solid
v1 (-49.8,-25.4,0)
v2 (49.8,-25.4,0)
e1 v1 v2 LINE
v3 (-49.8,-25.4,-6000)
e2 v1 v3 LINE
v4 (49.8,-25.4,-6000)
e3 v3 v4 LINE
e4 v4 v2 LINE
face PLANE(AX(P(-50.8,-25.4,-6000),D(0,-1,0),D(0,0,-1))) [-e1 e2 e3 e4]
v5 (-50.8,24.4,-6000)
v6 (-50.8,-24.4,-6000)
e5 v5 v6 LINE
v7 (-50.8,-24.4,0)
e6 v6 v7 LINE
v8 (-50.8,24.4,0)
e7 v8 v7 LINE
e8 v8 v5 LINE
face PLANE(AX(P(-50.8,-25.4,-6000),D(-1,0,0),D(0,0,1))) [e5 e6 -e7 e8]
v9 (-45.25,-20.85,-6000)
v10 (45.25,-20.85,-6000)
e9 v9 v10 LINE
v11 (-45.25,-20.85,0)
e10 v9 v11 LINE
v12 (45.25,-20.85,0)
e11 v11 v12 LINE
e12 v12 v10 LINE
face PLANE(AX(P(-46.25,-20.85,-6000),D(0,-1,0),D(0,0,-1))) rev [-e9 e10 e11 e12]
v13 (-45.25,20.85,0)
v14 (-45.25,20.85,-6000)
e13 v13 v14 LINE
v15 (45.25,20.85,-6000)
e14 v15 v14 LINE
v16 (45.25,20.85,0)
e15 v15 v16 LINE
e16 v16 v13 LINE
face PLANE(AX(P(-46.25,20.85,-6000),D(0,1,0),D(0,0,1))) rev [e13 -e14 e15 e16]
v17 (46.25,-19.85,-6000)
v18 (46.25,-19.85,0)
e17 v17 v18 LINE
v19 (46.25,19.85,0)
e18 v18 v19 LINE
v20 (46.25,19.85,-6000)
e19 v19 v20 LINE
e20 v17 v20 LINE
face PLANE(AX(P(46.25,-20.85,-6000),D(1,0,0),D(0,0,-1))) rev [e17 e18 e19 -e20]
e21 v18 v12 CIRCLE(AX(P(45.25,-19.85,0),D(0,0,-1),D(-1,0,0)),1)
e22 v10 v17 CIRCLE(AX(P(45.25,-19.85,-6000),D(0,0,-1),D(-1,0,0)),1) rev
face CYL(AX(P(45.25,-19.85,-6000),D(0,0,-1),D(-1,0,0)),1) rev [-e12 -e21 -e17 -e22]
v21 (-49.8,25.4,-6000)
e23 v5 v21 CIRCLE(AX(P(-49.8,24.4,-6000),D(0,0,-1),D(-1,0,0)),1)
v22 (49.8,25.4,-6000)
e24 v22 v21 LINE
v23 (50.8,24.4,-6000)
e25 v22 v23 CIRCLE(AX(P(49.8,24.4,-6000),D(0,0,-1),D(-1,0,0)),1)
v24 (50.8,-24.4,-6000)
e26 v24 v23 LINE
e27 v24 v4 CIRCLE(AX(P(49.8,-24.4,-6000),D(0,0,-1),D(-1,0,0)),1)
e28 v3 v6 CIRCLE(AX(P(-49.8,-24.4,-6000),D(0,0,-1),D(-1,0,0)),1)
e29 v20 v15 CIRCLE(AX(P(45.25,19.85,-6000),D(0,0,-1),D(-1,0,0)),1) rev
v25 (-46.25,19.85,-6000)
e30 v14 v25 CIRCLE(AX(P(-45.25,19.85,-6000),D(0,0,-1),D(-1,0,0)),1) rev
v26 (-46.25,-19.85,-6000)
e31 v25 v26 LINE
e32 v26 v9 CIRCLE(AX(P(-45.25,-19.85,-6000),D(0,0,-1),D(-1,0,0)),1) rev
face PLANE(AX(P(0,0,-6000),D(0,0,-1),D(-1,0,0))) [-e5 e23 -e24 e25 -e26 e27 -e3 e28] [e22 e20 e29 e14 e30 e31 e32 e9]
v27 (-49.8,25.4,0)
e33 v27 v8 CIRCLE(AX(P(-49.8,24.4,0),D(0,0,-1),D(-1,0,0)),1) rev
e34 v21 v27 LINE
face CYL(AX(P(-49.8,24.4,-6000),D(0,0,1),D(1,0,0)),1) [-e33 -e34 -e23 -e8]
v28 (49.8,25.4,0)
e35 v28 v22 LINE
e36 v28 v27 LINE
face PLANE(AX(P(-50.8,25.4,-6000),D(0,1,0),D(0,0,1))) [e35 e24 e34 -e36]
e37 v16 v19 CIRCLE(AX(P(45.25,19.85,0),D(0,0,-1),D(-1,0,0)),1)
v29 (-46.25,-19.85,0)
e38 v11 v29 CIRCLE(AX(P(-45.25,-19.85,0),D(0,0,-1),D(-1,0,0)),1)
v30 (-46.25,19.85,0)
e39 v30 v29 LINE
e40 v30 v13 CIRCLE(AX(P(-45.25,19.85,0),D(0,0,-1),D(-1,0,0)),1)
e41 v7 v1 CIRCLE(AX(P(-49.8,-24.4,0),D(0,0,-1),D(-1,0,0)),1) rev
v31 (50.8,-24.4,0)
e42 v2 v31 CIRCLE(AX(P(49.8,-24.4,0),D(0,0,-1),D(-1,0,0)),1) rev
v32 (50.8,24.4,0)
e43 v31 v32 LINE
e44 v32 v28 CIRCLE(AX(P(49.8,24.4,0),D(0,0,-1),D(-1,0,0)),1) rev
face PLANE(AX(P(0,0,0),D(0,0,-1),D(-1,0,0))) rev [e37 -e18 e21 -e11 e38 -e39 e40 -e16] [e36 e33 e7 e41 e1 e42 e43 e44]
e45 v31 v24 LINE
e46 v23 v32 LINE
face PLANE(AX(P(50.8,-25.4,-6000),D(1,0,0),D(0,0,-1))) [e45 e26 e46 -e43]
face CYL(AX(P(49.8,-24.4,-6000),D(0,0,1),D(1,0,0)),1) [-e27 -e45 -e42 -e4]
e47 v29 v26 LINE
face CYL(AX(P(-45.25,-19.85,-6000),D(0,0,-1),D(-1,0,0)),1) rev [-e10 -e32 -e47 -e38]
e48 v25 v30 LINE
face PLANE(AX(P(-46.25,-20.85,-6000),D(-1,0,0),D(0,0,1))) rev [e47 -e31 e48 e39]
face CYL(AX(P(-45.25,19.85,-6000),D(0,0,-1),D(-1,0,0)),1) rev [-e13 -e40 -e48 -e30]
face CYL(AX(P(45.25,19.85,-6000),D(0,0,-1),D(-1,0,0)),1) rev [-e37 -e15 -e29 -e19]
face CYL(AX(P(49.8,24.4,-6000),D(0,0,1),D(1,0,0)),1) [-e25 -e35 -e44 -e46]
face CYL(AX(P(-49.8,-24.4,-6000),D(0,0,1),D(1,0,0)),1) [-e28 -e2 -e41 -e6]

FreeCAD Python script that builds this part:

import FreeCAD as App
import Part
import Sketcher

V = App.Vector
Q = App.Units.Quantity


def edges_at(feature, points):
    """Names of the edges that pass closest to the given points."""
    edges = feature.Shape.Edges
    near = lambda p: min(range(len(edges)), key=lambda i: edges[i].distToShape(Part.Vertex(*p))[0])
    return sorted({f"Edge{near(p) + 1}" for p in points})

doc = App.newDocument("Part")
body = doc.addObject("PartDesign::Body", "Body")

# Sketch on XY plane
sketch1 = body.newObject("Sketcher::SketchObject", "Sketch")
sketch1.AttachmentSupport = (doc.getObject("XY_Plane"), [""])
sketch1.MapMode = "FlatFace"
sketch1.addGeometry([
    Part.LineSegment(V(-50.8, 25.4, 0), V(-50.8, -25.4, 0)),  # 0
    Part.LineSegment(V(-50.8, -25.4, 0), V(50.8, -25.4, 0)),  # 1
    Part.LineSegment(V(50.8, -25.4, 0), V(50.8, 25.4, 0)),  # 2
    Part.LineSegment(V(50.8, 25.4, 0), V(-50.8, 25.4, 0)),  # 3
    Part.LineSegment(V(46.25, -20.85, 0), V(-46.25, -20.85, 0)),  # 4
    Part.LineSegment(V(-46.25, -20.85, 0), V(-46.25, 20.85, 0)),  # 5
    Part.LineSegment(V(-46.25, 20.85, 0), V(46.25, 20.85, 0)),  # 6
    Part.LineSegment(V(46.25, 20.85, 0), V(46.25, -20.85, 0)),  # 7
], False)
sketch1.addConstraint([
    Sketcher.Constraint("Coincident", 0, 2, 1, 1),
    Sketcher.Constraint("Coincident", 1, 2, 2, 1),
    Sketcher.Constraint("Coincident", 2, 2, 3, 1),
    Sketcher.Constraint("Coincident", 3, 2, 0, 1),
    Sketcher.Constraint("Coincident", 4, 2, 5, 1),
    Sketcher.Constraint("Coincident", 5, 2, 6, 1),
    Sketcher.Constraint("Coincident", 6, 2, 7, 1),
    Sketcher.Constraint("Coincident", 7, 2, 4, 1),
    Sketcher.Constraint("Vertical", 0),
    Sketcher.Constraint("Horizontal", 1),
    Sketcher.Constraint("Vertical", 2),
    Sketcher.Constraint("Horizontal", 3),
    Sketcher.Constraint("Horizontal", 4),
    Sketcher.Constraint("Vertical", 5),
    Sketcher.Constraint("Horizontal", 6),
    Sketcher.Constraint("Vertical", 7),
    Sketcher.Constraint("Symmetric", 0, 2, 2, 2, -1, 1),
    Sketcher.Constraint("Symmetric", 4, 2, 6, 2, -1, 1),
    Sketcher.Constraint("DistanceX", 1, 1, 1, 2, Q("101.6 mm")),
    Sketcher.Constraint("DistanceX", 4, 2, 4, 1, Q("92.5 mm")),
    Sketcher.Constraint("DistanceY", 0, 2, 0, 1, Q("50.8 mm")),
    Sketcher.Constraint("DistanceY", 5, 1, 5, 2, Q("41.7 mm")),
])
pad1 = body.newObject("PartDesign::Pad", "Pad")
pad1.Profile = sketch1
pad1.Length = 6000
pad1.Reversed = True
doc.recompute()

fillet = body.newObject("PartDesign::Fillet", "Fillet")
fillet.Base = (pad1, edges_at(pad1, [
    (46.25, -20.85, -3000),
    (-46.25, -20.85, -3000),
    (-46.25, 20.85, -3000),
    (46.25, 20.85, -3000),
    (50.8, -25.4, -3000),
    (-50.8, -25.4, -3000),
    (-50.8, 25.4, -3000),
    (50.8, 25.4, -3000),
]))
fillet.Radius = 1

doc.recompute()
